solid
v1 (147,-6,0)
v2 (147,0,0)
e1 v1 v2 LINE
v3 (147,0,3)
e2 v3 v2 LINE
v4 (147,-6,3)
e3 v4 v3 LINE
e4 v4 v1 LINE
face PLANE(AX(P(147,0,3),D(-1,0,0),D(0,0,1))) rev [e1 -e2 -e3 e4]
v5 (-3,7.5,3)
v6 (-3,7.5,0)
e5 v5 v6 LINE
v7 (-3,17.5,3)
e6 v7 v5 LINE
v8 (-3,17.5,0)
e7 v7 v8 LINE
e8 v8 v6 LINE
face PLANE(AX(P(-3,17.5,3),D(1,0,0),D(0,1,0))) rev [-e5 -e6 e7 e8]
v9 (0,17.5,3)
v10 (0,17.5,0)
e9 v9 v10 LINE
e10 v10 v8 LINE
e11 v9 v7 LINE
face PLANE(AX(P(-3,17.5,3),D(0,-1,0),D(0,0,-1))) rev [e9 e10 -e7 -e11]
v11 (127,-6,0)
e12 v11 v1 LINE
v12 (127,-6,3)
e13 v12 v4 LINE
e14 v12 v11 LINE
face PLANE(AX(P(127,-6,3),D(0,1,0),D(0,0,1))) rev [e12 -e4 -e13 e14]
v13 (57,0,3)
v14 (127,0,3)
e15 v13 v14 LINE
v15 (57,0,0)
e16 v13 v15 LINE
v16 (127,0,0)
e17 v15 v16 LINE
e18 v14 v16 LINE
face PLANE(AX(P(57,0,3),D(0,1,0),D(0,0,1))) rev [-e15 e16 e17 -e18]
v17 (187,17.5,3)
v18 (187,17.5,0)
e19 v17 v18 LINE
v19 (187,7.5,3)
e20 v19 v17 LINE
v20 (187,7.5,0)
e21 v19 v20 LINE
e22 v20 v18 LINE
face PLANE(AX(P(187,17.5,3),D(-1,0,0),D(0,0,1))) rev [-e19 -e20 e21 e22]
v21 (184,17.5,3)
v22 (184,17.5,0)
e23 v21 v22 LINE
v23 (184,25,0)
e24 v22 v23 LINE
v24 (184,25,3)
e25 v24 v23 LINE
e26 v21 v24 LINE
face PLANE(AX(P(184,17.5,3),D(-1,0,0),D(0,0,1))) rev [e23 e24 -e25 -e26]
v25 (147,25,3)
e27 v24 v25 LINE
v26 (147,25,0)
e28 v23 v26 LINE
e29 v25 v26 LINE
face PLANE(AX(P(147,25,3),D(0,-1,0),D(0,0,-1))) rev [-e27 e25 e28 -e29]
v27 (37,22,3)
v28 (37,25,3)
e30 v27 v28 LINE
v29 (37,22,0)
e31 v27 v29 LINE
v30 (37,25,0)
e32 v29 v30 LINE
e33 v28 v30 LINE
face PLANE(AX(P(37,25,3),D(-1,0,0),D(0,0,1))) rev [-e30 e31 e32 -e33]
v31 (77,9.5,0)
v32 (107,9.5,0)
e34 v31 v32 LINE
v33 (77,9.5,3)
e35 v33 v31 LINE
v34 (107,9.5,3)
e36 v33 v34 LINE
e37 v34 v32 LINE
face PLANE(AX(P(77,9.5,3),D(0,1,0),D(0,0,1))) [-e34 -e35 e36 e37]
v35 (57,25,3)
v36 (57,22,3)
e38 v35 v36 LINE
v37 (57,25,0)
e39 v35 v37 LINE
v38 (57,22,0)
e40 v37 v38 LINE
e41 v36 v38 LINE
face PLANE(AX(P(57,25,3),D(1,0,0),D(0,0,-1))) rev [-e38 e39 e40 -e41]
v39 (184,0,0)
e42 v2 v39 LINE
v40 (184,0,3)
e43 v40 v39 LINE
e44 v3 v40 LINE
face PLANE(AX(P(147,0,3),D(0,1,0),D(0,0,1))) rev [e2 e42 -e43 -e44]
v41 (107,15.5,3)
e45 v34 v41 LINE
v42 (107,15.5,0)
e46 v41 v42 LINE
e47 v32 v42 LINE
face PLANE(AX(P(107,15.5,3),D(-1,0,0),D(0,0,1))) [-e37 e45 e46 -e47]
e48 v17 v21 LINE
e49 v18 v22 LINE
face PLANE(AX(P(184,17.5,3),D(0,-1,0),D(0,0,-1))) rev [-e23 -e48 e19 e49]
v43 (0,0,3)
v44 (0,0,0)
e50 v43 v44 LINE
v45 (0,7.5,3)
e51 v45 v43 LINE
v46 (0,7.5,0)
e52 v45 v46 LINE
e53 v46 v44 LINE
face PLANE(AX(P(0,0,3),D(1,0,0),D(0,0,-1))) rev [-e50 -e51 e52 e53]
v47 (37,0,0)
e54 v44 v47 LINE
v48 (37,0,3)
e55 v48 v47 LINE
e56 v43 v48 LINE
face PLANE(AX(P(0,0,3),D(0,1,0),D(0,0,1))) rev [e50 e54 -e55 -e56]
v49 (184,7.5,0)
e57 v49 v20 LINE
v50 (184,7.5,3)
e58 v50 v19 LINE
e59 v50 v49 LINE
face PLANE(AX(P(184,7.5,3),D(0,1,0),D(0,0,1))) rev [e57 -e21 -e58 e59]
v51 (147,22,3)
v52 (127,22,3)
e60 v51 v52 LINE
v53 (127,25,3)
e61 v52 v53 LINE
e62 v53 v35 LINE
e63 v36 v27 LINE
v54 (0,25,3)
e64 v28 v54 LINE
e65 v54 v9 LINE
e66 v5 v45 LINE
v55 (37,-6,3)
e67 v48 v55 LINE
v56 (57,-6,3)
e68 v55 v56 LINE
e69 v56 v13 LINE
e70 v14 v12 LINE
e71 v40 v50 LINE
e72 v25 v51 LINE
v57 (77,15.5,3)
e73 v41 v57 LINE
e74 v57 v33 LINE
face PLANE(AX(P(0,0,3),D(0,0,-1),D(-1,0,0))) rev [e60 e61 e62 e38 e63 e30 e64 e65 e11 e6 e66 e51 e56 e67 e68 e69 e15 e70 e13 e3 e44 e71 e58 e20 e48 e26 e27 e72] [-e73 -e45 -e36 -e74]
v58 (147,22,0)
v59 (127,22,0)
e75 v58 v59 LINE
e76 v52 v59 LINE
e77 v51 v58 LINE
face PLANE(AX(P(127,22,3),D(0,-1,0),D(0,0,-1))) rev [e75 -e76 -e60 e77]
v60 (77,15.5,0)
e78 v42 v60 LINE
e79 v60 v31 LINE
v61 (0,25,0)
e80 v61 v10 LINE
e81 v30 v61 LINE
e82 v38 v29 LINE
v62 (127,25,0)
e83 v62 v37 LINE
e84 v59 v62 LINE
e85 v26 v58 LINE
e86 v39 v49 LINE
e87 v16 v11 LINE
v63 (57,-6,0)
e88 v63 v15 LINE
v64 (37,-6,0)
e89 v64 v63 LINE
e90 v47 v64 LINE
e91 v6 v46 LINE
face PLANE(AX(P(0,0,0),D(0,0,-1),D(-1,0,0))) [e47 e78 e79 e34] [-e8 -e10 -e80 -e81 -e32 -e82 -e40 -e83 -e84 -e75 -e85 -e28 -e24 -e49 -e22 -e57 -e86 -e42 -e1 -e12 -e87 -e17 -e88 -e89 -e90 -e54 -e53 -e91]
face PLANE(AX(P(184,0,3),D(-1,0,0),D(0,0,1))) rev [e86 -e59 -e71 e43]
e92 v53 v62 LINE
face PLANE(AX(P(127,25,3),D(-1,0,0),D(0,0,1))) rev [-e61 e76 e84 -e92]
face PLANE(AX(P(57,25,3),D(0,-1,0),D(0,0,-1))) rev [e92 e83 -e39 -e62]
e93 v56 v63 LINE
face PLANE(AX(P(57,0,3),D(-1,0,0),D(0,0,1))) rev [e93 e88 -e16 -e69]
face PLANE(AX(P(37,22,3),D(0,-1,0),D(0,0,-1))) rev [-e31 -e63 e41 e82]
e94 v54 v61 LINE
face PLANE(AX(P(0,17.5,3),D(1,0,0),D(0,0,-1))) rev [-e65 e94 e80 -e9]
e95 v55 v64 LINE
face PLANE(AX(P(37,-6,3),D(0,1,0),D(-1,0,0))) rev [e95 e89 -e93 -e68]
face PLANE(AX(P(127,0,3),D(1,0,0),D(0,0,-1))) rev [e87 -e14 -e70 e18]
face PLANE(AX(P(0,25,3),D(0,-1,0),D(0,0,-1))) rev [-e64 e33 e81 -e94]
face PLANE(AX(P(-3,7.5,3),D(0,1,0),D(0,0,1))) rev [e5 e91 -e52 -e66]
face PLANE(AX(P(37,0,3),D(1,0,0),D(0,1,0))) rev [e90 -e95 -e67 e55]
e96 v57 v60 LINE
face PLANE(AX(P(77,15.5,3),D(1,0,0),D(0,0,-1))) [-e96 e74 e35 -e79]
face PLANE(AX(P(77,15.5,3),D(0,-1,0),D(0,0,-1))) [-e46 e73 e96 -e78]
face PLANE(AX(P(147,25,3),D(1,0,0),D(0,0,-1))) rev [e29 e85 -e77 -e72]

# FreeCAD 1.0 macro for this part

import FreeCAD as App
import Part
import Sketcher
Q = App.Units.Quantity

doc = App.newDocument("Part")
body = doc.addObject("PartDesign::Body", "Body")

sketch1 = body.newObject("Sketcher::SketchObject", "Sketch")
sketch1.AttachmentSupport = (doc.getObject("XY_Plane"), [""])
sketch1.MapMode = "FlatFace"
sketch1.addGeometry(Part.LineSegment(App.Vector(127, 25, 0), App.Vector(57, 25, 0)), False)
sketch1.addGeometry(Part.LineSegment(App.Vector(57, 25, 0), App.Vector(57, 22, 0)), False)
sketch1.addGeometry(Part.LineSegment(App.Vector(57, 22, 0), App.Vector(37, 22, 0)), False)
sketch1.addGeometry(Part.LineSegment(App.Vector(37, 22, 0), App.Vector(37, 25, 0)), False)
sketch1.addGeometry(Part.LineSegment(App.Vector(37, 25, 0), App.Vector(0, 25, 0)), False)
sketch1.addGeometry(Part.LineSegment(App.Vector(0, 25, 0), App.Vector(0, 17.5, 0)), False)
sketch1.addGeometry(Part.LineSegment(App.Vector(0, 17.5, 0), App.Vector(-3, 17.5, 0)), False)
sketch1.addGeometry(Part.LineSegment(App.Vector(-3, 17.5, 0), App.Vector(-3, 7.5, 0)), False)
sketch1.addGeometry(Part.LineSegment(App.Vector(-3, 7.5, 0), App.Vector(0, 7.5, 0)), False)
sketch1.addGeometry(Part.LineSegment(App.Vector(0, 7.5, 0), App.Vector(0, 0, 0)), False)
sketch1.addGeometry(Part.LineSegment(App.Vector(0, 0, 0), App.Vector(37, 0, 0)), False)
sketch1.addGeometry(Part.LineSegment(App.Vector(37, 0, 0), App.Vector(37, -6, 0)), False)
sketch1.addGeometry(Part.LineSegment(App.Vector(37, -6, 0), App.Vector(57, -6, 0)), False)
sketch1.addGeometry(Part.LineSegment(App.Vector(57, -6, 0), App.Vector(57, 0, 0)), False)
sketch1.addGeometry(Part.LineSegment(App.Vector(57, 0, 0), App.Vector(127, 0, 0)), False)
sketch1.addGeometry(Part.LineSegment(App.Vector(127, 0, 0), App.Vector(127, -6, 0)), False)
sketch1.addGeometry(Part.LineSegment(App.Vector(127, -6, 0), App.Vector(147, -6, 0)), False)
sketch1.addGeometry(Part.LineSegment(App.Vector(147, -6, 0), App.Vector(147, 0, 0)), False)
sketch1.addGeometry(Part.LineSegment(App.Vector(147, 0, 0), App.Vector(184, 0, 0)), False)
sketch1.addGeometry(Part.LineSegment(App.Vector(184, 0, 0), App.Vector(184, 7.5, 0)), False)
sketch1.addGeometry(Part.LineSegment(App.Vector(184, 7.5, 0), App.Vector(187, 7.5, 0)), False)
sketch1.addGeometry(Part.LineSegment(App.Vector(187, 7.5, 0), App.Vector(187, 17.5, 0)), False)
sketch1.addGeometry(Part.LineSegment(App.Vector(187, 17.5, 0), App.Vector(184, 17.5, 0)), False)
sketch1.addGeometry(Part.LineSegment(App.Vector(184, 17.5, 0), App.Vector(184, 25, 0)), False)
sketch1.addGeometry(Part.LineSegment(App.Vector(184, 25, 0), App.Vector(147, 25, 0)), False)
sketch1.addGeometry(Part.LineSegment(App.Vector(147, 25, 0), App.Vector(147, 22, 0)), False)
sketch1.addGeometry(Part.LineSegment(App.Vector(147, 22, 0), App.Vector(127, 22, 0)), False)
sketch1.addGeometry(Part.LineSegment(App.Vector(127, 22, 0), App.Vector(127, 25, 0)), False)
sketch1.addGeometry(Part.LineSegment(App.Vector(77, 9.5, 0), App.Vector(77, 15.5, 0)), False)
sketch1.addGeometry(Part.LineSegment(App.Vector(77, 15.5, 0), App.Vector(107, 15.5, 0)), False)
sketch1.addGeometry(Part.LineSegment(App.Vector(107, 15.5, 0), App.Vector(107, 9.5, 0)), False)
sketch1.addGeometry(Part.LineSegment(App.Vector(107, 9.5, 0), App.Vector(77, 9.5, 0)), False)
sketch1.addConstraint(Sketcher.Constraint("Coincident", 0, 2, 1, 1))
sketch1.addConstraint(Sketcher.Constraint("Coincident", 1, 2, 2, 1))
sketch1.addConstraint(Sketcher.Constraint("Coincident", 2, 2, 3, 1))
sketch1.addConstraint(Sketcher.Constraint("Coincident", 3, 2, 4, 1))
sketch1.addConstraint(Sketcher.Constraint("Coincident", 4, 2, 5, 1))
sketch1.addConstraint(Sketcher.Constraint("Coincident", 5, 2, 6, 1))
sketch1.addConstraint(Sketcher.Constraint("Coincident", 6, 2, 7, 1))
sketch1.addConstraint(Sketcher.Constraint("Coincident", 7, 2, 8, 1))
sketch1.addConstraint(Sketcher.Constraint("Coincident", 8, 2, 9, 1))
sketch1.addConstraint(Sketcher.Constraint("Coincident", 9, 2, 10, 1))
sketch1.addConstraint(Sketcher.Constraint("Coincident", 10, 2, 11, 1))
sketch1.addConstraint(Sketcher.Constraint("Coincident", 11, 2, 12, 1))
sketch1.addConstraint(Sketcher.Constraint("Coincident", 12, 2, 13, 1))
sketch1.addConstraint(Sketcher.Constraint("Coincident", 13, 2, 14, 1))
sketch1.addConstraint(Sketcher.Constraint("Coincident", 14, 2, 15, 1))
sketch1.addConstraint(Sketcher.Constraint("Coincident", 15, 2, 16, 1))
sketch1.addConstraint(Sketcher.Constraint("Coincident", 16, 2, 17, 1))
sketch1.addConstraint(Sketcher.Constraint("Coincident", 17, 2, 18, 1))
sketch1.addConstraint(Sketcher.Constraint("Coincident", 18, 2, 19, 1))
sketch1.addConstraint(Sketcher.Constraint("Coincident", 19, 2, 20, 1))
sketch1.addConstraint(Sketcher.Constraint("Coincident", 20, 2, 21, 1))
sketch1.addConstraint(Sketcher.Constraint("Coincident", 21, 2, 22, 1))
sketch1.addConstraint(Sketcher.Constraint("Coincident", 22, 2, 23, 1))
sketch1.addConstraint(Sketcher.Constraint("Coincident", 23, 2, 24, 1))
sketch1.addConstraint(Sketcher.Constraint("Coincident", 24, 2, 25, 1))
sketch1.addConstraint(Sketcher.Constraint("Coincident", 25, 2, 26, 1))
sketch1.addConstraint(Sketcher.Constraint("Coincident", 26, 2, 27, 1))
sketch1.addConstraint(Sketcher.Constraint("Coincident", 27, 2, 0, 1))
sketch1.addConstraint(Sketcher.Constraint("Coincident", 28, 2, 29, 1))
sketch1.addConstraint(Sketcher.Constraint("Coincident", 29, 2, 30, 1))
sketch1.addConstraint(Sketcher.Constraint("Coincident", 30, 2, 31, 1))
sketch1.addConstraint(Sketcher.Constraint("Coincident", 31, 2, 28, 1))
sketch1.addConstraint(Sketcher.Constraint("Horizontal", 0))
sketch1.addConstraint(Sketcher.Constraint("Vertical", 1))
sketch1.addConstraint(Sketcher.Constraint("Horizontal", 2))
sketch1.addConstraint(Sketcher.Constraint("Vertical", 3))
sketch1.addConstraint(Sketcher.Constraint("Horizontal", 4))
sketch1.addConstraint(Sketcher.Constraint("Vertical", 5))
sketch1.addConstraint(Sketcher.Constraint("Horizontal", 6))
sketch1.addConstraint(Sketcher.Constraint("Vertical", 7))
sketch1.addConstraint(Sketcher.Constraint("Horizontal", 8))
sketch1.addConstraint(Sketcher.Constraint("Vertical", 9))
sketch1.addConstraint(Sketcher.Constraint("Horizontal", 10))
sketch1.addConstraint(Sketcher.Constraint("Vertical", 11))
sketch1.addConstraint(Sketcher.Constraint("Horizontal", 12))
sketch1.addConstraint(Sketcher.Constraint("Vertical", 13))
sketch1.addConstraint(Sketcher.Constraint("Horizontal", 14))
sketch1.addConstraint(Sketcher.Constraint("Vertical", 15))
sketch1.addConstraint(Sketcher.Constraint("Horizontal", 16))
sketch1.addConstraint(Sketcher.Constraint("Vertical", 17))
sketch1.addConstraint(Sketcher.Constraint("Horizontal", 18))
sketch1.addConstraint(Sketcher.Constraint("Vertical", 19))
sketch1.addConstraint(Sketcher.Constraint("Horizontal", 20))
sketch1.addConstraint(Sketcher.Constraint("Vertical", 21))
sketch1.addConstraint(Sketcher.Constraint("Horizontal", 22))
sketch1.addConstraint(Sketcher.Constraint("Vertical", 23))
sketch1.addConstraint(Sketcher.Constraint("Horizontal", 24))
sketch1.addConstraint(Sketcher.Constraint("Vertical", 25))
sketch1.addConstraint(Sketcher.Constraint("Horizontal", 26))
sketch1.addConstraint(Sketcher.Constraint("Vertical", 27))
sketch1.addConstraint(Sketcher.Constraint("Vertical", 28))
sketch1.addConstraint(Sketcher.Constraint("Horizontal", 29))
sketch1.addConstraint(Sketcher.Constraint("Vertical", 30))
sketch1.addConstraint(Sketcher.Constraint("Horizontal", 31))
sketch1.addConstraint(Sketcher.Constraint("Coincident", 9, 2, -1, 1))
sketch1.addConstraint(Sketcher.Constraint("PointOnObject", 4, 2, -2))
sketch1.addConstraint(Sketcher.Constraint("PointOnObject", 13, 2, -1))
sketch1.addConstraint(Sketcher.Constraint("PointOnObject", 17, 2, -1))
sketch1.addConstraint(Sketcher.Constraint("Horizontal", 0, 2, 3, 2))
sketch1.addConstraint(Sketcher.Constraint("Horizontal", 12, 2, 15, 2))
sketch1.addConstraint(Sketcher.Constraint("Horizontal", 8, 2, 19, 2))
sketch1.addConstraint(Sketcher.Constraint("Horizontal", 6, 2, 21, 2))
sketch1.addConstraint(Sketcher.Constraint("Horizontal", 4, 2, 23, 2))
sketch1.addConstraint(Sketcher.Constraint("Horizontal", 2, 2, 25, 2))
sketch1.addConstraint(Sketcher.Constraint("Vertical", 3, 2, 10, 2))
sketch1.addConstraint(Sketcher.Constraint("Vertical", 1, 2, 12, 2))
sketch1.addConstraint(Sketcher.Constraint("Vertical", 19, 2, 22, 2))
sketch1.addConstraint(Sketcher.Constraint("Vertical", 17, 2, 24, 2))
sketch1.addConstraint(Sketcher.Constraint("Vertical", 15, 2, 26, 2))
sketch1.addConstraint(Sketcher.Constraint("Equal", 12, 16))
sketch1.addConstraint(Sketcher.Constraint("Equal", 10, 18))
sketch1.addConstraint(Sketcher.Constraint("Equal", 8, 20))
sketch1.addConstraint(Sketcher.Constraint("Equal", 22, 1))
sketch1.addConstraint(Sketcher.Constraint("Equal", 5, 9))
sketch1.addConstraint(Sketcher.Constraint("Equal", 17, 28))
sketch1.addConstraint(Sketcher.Constraint("DistanceX", 0, 2, 0, 1, Q("70 mm")))
sketch1.addConstraint(Sketcher.Constraint("DistanceX", 2, 2, 2, 1, Q("20 mm")))
sketch1.addConstraint(Sketcher.Constraint("DistanceX", 4, 2, 4, 1, Q("37 mm")))
sketch1.addConstraint(Sketcher.Constraint("DistanceX", 6, 2, 6, 1, Q("3 mm")))
sketch1.addConstraint(Sketcher.Constraint("DistanceX", 29, 1, 29, 2, Q("30 mm")))
sketch1.addConstraint(Sketcher.Constraint("DistanceY", 7, 2, 7, 1, Q("10 mm")))
sketch1.addConstraint(Sketcher.Constraint("DistanceY", 11, 2, 11, 1, Q("6 mm")))
sketch1.addConstraint(Sketcher.Constraint("DistanceY", 5, 2, 5, 1, Q("7.5 mm")))
sketch1.addConstraint(Sketcher.Constraint("DistanceX", -1, 1, 28, 2, Q("77 mm")))
sketch1.addConstraint(Sketcher.Constraint("DistanceY", -1, 1, 28, 2, Q("15.5 mm")))
pad1 = body.newObject("PartDesign::Pad", "Pad")
pad1.Profile = sketch1
pad1.Length = 3

doc.recompute()
